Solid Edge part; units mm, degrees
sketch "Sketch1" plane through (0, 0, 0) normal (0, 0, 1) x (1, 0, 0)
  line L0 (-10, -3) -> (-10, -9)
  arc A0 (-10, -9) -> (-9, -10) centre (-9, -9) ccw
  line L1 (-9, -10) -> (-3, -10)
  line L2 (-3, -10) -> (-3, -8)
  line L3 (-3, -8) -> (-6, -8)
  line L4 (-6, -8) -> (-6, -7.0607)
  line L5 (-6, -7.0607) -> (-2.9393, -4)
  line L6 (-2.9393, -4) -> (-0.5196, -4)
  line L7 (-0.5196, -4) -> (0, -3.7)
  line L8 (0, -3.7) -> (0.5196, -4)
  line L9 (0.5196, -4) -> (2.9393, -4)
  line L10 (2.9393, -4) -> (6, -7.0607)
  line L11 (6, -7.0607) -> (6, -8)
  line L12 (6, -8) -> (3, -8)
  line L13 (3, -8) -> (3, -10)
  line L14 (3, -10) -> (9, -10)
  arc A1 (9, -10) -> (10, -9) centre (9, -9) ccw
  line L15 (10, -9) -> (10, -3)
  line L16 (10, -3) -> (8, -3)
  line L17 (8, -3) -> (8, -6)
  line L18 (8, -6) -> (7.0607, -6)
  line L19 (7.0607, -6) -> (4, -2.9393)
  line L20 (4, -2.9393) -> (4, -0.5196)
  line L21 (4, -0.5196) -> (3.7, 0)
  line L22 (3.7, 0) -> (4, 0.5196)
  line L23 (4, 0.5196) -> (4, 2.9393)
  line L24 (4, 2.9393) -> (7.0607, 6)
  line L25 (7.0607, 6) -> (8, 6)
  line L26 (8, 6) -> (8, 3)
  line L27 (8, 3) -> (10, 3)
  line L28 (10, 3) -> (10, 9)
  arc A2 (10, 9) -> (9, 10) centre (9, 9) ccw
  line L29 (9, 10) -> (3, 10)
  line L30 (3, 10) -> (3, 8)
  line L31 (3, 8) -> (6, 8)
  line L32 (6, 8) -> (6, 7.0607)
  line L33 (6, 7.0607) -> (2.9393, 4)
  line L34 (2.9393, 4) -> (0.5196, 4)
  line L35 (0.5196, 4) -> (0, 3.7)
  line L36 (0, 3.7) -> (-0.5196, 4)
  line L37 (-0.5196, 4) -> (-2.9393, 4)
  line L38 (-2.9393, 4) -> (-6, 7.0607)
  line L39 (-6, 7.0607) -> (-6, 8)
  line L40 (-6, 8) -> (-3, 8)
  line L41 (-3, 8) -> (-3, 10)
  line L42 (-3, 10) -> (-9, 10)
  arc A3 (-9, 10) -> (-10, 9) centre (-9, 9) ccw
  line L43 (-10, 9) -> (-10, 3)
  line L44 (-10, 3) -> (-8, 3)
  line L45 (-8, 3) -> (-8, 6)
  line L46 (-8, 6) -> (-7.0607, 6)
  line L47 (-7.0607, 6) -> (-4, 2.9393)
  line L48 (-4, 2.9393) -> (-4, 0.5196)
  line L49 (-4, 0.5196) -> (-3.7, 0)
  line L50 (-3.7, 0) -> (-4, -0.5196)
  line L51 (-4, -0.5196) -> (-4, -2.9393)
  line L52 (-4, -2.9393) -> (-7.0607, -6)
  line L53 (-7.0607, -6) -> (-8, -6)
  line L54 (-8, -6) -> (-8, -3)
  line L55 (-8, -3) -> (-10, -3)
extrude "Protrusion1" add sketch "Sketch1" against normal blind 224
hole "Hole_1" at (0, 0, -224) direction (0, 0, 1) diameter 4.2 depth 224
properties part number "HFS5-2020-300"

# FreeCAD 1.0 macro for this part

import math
import FreeCAD as App
import Part
import Sketcher
from FreeCAD import Vector
Q = App.Units.Quantity

doc = App.newDocument("Part")
body = doc.addObject("PartDesign::Body", "Body")

sketch1 = body.newObject("Sketcher::SketchObject", "Sketch")
sketch1.AttachmentSupport = (doc.getObject("XY_Plane"), [""])
sketch1.MapMode = "FlatFace"
sketch1.addGeometry([
    Part.LineSegment(Vector(-8, -3, 0), Vector(-10, -3, 0)),
    Part.LineSegment(Vector(-10, -3, 0), Vector(-10, -9, 0)),
    Part.ArcOfCircle(Part.Circle(Vector(-9, -9, 0), Vector(0, 0, 1), 1), math.radians(180), math.radians(270)),
    Part.LineSegment(Vector(-9, -10, 0), Vector(-3, -10, 0)),
    Part.LineSegment(Vector(-3, -10, 0), Vector(-3, -8, 0)),
    Part.LineSegment(Vector(-3, -8, 0), Vector(-6, -8, 0)),
    Part.LineSegment(Vector(-6, -8, 0), Vector(-6, -7.1, 0)),
    Part.LineSegment(Vector(-6, -7.1, 0), Vector(-2.9, -4, 0)),
    Part.LineSegment(Vector(-2.9, -4, 0), Vector(-0.5, -4, 0)),
    Part.LineSegment(Vector(-0.5, -4, 0), Vector(0, -3.7, 0)),
    Part.LineSegment(Vector(0, -3.7, 0), Vector(0.5, -4, 0)),
    Part.LineSegment(Vector(0.5, -4, 0), Vector(2.9, -4, 0)),
    Part.LineSegment(Vector(2.9, -4, 0), Vector(6, -7.1, 0)),
    Part.LineSegment(Vector(6, -7.1, 0), Vector(6, -8, 0)),
    Part.LineSegment(Vector(6, -8, 0), Vector(3, -8, 0)),
    Part.LineSegment(Vector(3, -8, 0), Vector(3, -10, 0)),
    Part.LineSegment(Vector(3, -10, 0), Vector(9, -10, 0)),
    Part.ArcOfCircle(Part.Circle(Vector(9, -9, 0), Vector(0, 0, 1), 1), math.radians(-90), math.radians(0)),
    Part.LineSegment(Vector(10, -9, 0), Vector(10, -3, 0)),
    Part.LineSegment(Vector(10, -3, 0), Vector(8, -3, 0)),
    Part.LineSegment(Vector(8, -3, 0), Vector(8, -6, 0)),
    Part.LineSegment(Vector(8, -6, 0), Vector(7.1, -6, 0)),
    Part.LineSegment(Vector(7.1, -6, 0), Vector(4, -2.9, 0)),
    Part.LineSegment(Vector(4, -2.9, 0), Vector(4, -0.5, 0)),
    Part.LineSegment(Vector(4, -0.5, 0), Vector(3.7, 0, 0)),
    Part.LineSegment(Vector(3.7, 0, 0), Vector(4, 0.5, 0)),
    Part.LineSegment(Vector(4, 0.5, 0), Vector(4, 2.9, 0)),
    Part.LineSegment(Vector(4, 2.9, 0), Vector(7.1, 6, 0)),
    Part.LineSegment(Vector(7.1, 6, 0), Vector(8, 6, 0)),
    Part.LineSegment(Vector(8, 6, 0), Vector(8, 3, 0)),
    Part.LineSegment(Vector(8, 3, 0), Vector(10, 3, 0)),
    Part.LineSegment(Vector(10, 3, 0), Vector(10, 9, 0)),
    Part.ArcOfCircle(Part.Circle(Vector(9, 9, 0), Vector(0, 0, 1), 1), math.radians(0), math.radians(90)),
    Part.LineSegment(Vector(9, 10, 0), Vector(3, 10, 0)),
    Part.LineSegment(Vector(3, 10, 0), Vector(3, 8, 0)),
    Part.LineSegment(Vector(3, 8, 0), Vector(6, 8, 0)),
    Part.LineSegment(Vector(6, 8, 0), Vector(6, 7.1, 0)),
    Part.LineSegment(Vector(6, 7.1, 0), Vector(2.9, 4, 0)),
    Part.LineSegment(Vector(2.9, 4, 0), Vector(0.5, 4, 0)),
    Part.LineSegment(Vector(0.5, 4, 0), Vector(0, 3.7, 0)),
    Part.LineSegment(Vector(0, 3.7, 0), Vector(-0.5, 4, 0)),
    Part.LineSegment(Vector(-0.5, 4, 0), Vector(-2.9, 4, 0)),
    Part.LineSegment(Vector(-2.9, 4, 0), Vector(-6, 7.1, 0)),
    Part.LineSegment(Vector(-6, 7.1, 0), Vector(-6, 8, 0)),
    Part.LineSegment(Vector(-6, 8, 0), Vector(-3, 8, 0)),
    Part.LineSegment(Vector(-3, 8, 0), Vector(-3, 10, 0)),
    Part.LineSegment(Vector(-3, 10, 0), Vector(-9, 10, 0)),
    Part.ArcOfCircle(Part.Circle(Vector(-9, 9, 0), Vector(0, 0, 1), 1), math.radians(90), math.radians(180)),
    Part.LineSegment(Vector(-10, 9, 0), Vector(-10, 3, 0)),
    Part.LineSegment(Vector(-10, 3, 0), Vector(-8, 3, 0)),
    Part.LineSegment(Vector(-8, 3, 0), Vector(-8, 6, 0)),
    Part.LineSegment(Vector(-8, 6, 0), Vector(-7.1, 6, 0)),
    Part.LineSegment(Vector(-7.1, 6, 0), Vector(-4, 2.9, 0)),
    Part.LineSegment(Vector(-4, 2.9, 0), Vector(-4, 0.5, 0)),
    Part.LineSegment(Vector(-4, 0.5, 0), Vector(-3.7, 0, 0)),
    Part.LineSegment(Vector(-3.7, 0, 0), Vector(-4, -0.5, 0)),
    Part.LineSegment(Vector(-4, -0.5, 0), Vector(-4, -2.9, 0)),
    Part.LineSegment(Vector(-4, -2.9, 0), Vector(-7.1, -6, 0)),
    Part.LineSegment(Vector(-7.1, -6, 0), Vector(-8, -6, 0)),
    Part.LineSegment(Vector(-8, -6, 0), Vector(-8, -3, 0)),
], False)
sketch1.addConstraint([
    Sketcher.Constraint("Coincident", 0, 2, 1, 1),
    Sketcher.Constraint("Tangent", 1, 2, 2, 1),
    Sketcher.Constraint("Tangent", 2, 2, 3, 1),
    Sketcher.Constraint("Coincident", 3, 2, 4, 1),
    Sketcher.Constraint("Coincident", 4, 2, 5, 1),
    Sketcher.Constraint("Coincident", 5, 2, 6, 1),
    Sketcher.Constraint("Coincident", 6, 2, 7, 1),
    Sketcher.Constraint("Coincident", 7, 2, 8, 1),
    Sketcher.Constraint("Coincident", 8, 2, 9, 1),
    Sketcher.Constraint("Coincident", 9, 2, 10, 1),
    Sketcher.Constraint("Coincident", 10, 2, 11, 1),
    Sketcher.Constraint("Coincident", 11, 2, 12, 1),
    Sketcher.Constraint("Coincident", 12, 2, 13, 1),
    Sketcher.Constraint("Coincident", 13, 2, 14, 1),
    Sketcher.Constraint("Coincident", 14, 2, 15, 1),
    Sketcher.Constraint("Coincident", 15, 2, 16, 1),
    Sketcher.Constraint("Tangent", 16, 2, 17, 1),
    Sketcher.Constraint("Tangent", 17, 2, 18, 1),
    Sketcher.Constraint("Coincident", 18, 2, 19, 1),
    Sketcher.Constraint("Coincident", 19, 2, 20, 1),
    Sketcher.Constraint("Coincident", 20, 2, 21, 1),
    Sketcher.Constraint("Coincident", 21, 2, 22, 1),
    Sketcher.Constraint("Coincident", 22, 2, 23, 1),
    Sketcher.Constraint("Coincident", 23, 2, 24, 1),
    Sketcher.Constraint("Coincident", 24, 2, 25, 1),
    Sketcher.Constraint("Coincident", 25, 2, 26, 1),
    Sketcher.Constraint("Coincident", 26, 2, 27, 1),
    Sketcher.Constraint("Coincident", 27, 2, 28, 1),
    Sketcher.Constraint("Coincident", 28, 2, 29, 1),
    Sketcher.Constraint("Coincident", 29, 2, 30, 1),
    Sketcher.Constraint("Coincident", 30, 2, 31, 1),
    Sketcher.Constraint("Tangent", 31, 2, 32, 1),
    Sketcher.Constraint("Tangent", 32, 2, 33, 1),
    Sketcher.Constraint("Coincident", 33, 2, 34, 1),
    Sketcher.Constraint("Coincident", 34, 2, 35, 1),
    Sketcher.Constraint("Coincident", 35, 2, 36, 1),
    Sketcher.Constraint("Coincident", 36, 2, 37, 1),
    Sketcher.Constraint("Coincident", 37, 2, 38, 1),
    Sketcher.Constraint("Coincident", 38, 2, 39, 1),
    Sketcher.Constraint("Coincident", 39, 2, 40, 1),
    Sketcher.Constraint("Coincident", 40, 2, 41, 1),
    Sketcher.Constraint("Coincident", 41, 2, 42, 1),
    Sketcher.Constraint("Coincident", 42, 2, 43, 1),
    Sketcher.Constraint("Coincident", 43, 2, 44, 1),
    Sketcher.Constraint("Coincident", 44, 2, 45, 1),
    Sketcher.Constraint("Coincident", 45, 2, 46, 1),
    Sketcher.Constraint("Tangent", 46, 2, 47, 1),
    Sketcher.Constraint("Tangent", 47, 2, 48, 1),
    Sketcher.Constraint("Coincident", 48, 2, 49, 1),
    Sketcher.Constraint("Coincident", 49, 2, 50, 1),
    Sketcher.Constraint("Coincident", 50, 2, 51, 1),
    Sketcher.Constraint("Coincident", 51, 2, 52, 1),
    Sketcher.Constraint("Coincident", 52, 2, 53, 1),
    Sketcher.Constraint("Coincident", 53, 2, 54, 1),
    Sketcher.Constraint("Coincident", 54, 2, 55, 1),
    Sketcher.Constraint("Coincident", 55, 2, 56, 1),
    Sketcher.Constraint("Coincident", 56, 2, 57, 1),
    Sketcher.Constraint("Coincident", 57, 2, 58, 1),
    Sketcher.Constraint("Coincident", 58, 2, 59, 1),
    Sketcher.Constraint("Coincident", 59, 2, 0, 1),
    Sketcher.Constraint("Horizontal", 0),
    Sketcher.Constraint("Vertical", 1),
    Sketcher.Constraint("Horizontal", 3),
    Sketcher.Constraint("Vertical", 4),
    Sketcher.Constraint("Horizontal", 5),
    Sketcher.Constraint("Vertical", 6),
    Sketcher.Constraint("Horizontal", 8),
    Sketcher.Constraint("Horizontal", 11),
    Sketcher.Constraint("Vertical", 13),
    Sketcher.Constraint("Horizontal", 14),
    Sketcher.Constraint("Vertical", 15),
    Sketcher.Constraint("Horizontal", 16),
    Sketcher.Constraint("Vertical", 18),
    Sketcher.Constraint("Horizontal", 19),
    Sketcher.Constraint("Vertical", 20),
    Sketcher.Constraint("Horizontal", 21),
    Sketcher.Constraint("Vertical", 23),
    Sketcher.Constraint("Vertical", 26),
    Sketcher.Constraint("Horizontal", 28),
    Sketcher.Constraint("Vertical", 29),
    Sketcher.Constraint("Horizontal", 30),
    Sketcher.Constraint("Vertical", 31),
    Sketcher.Constraint("Horizontal", 33),
    Sketcher.Constraint("Vertical", 34),
    Sketcher.Constraint("Horizontal", 35),
    Sketcher.Constraint("Vertical", 36),
    Sketcher.Constraint("Horizontal", 38),
    Sketcher.Constraint("Horizontal", 41),
    Sketcher.Constraint("Vertical", 43),
    Sketcher.Constraint("Horizontal", 44),
    Sketcher.Constraint("Vertical", 45),
    Sketcher.Constraint("Horizontal", 46),
    Sketcher.Constraint("Vertical", 48),
    Sketcher.Constraint("Horizontal", 49),
    Sketcher.Constraint("Vertical", 50),
    Sketcher.Constraint("Horizontal", 51),
    Sketcher.Constraint("Vertical", 53),
    Sketcher.Constraint("Vertical", 56),
    Sketcher.Constraint("Horizontal", 58),
    Sketcher.Constraint("Vertical", 59),
    Sketcher.Constraint("Equal", 2, 17),
    Sketcher.Constraint("Equal", 17, 32),
    Sketcher.Constraint("Equal", 32, 47),
    Sketcher.Constraint("Symmetric", 2, 3, 32, 3, -1, 1),
    Sketcher.Constraint("Symmetric", 17, 3, 47, 3, -1, 1),
    Sketcher.Constraint("Symmetric", 4, 2, 34, 2, -1, 1),
    Sketcher.Constraint("Symmetric", 6, 2, 36, 2, -1, 1),
    Sketcher.Constraint("Symmetric", 7, 2, 37, 2, -1, 1),
    Sketcher.Constraint("Symmetric", 9, 2, 39, 2, -1, 1),
    Sketcher.Constraint("Symmetric", 10, 2, 40, 2, -1, 1),
    Sketcher.Constraint("Symmetric", 12, 2, 42, 2, -1, 1),
    Sketcher.Constraint("Symmetric", 14, 2, 44, 2, -1, 1),
    Sketcher.Constraint("Symmetric", 19, 2, 49, 2, -1, 1),
    Sketcher.Constraint("Symmetric", 21, 2, 51, 2, -1, 1),
    Sketcher.Constraint("Symmetric", 22, 2, 52, 2, -1, 1),
    Sketcher.Constraint("Symmetric", 24, 2, 54, 2, -1, 1),
    Sketcher.Constraint("Symmetric", 25, 2, 55, 2, -1, 1),
    Sketcher.Constraint("Symmetric", 27, 2, 57, 2, -1, 1),
    Sketcher.Constraint("Symmetric", 29, 2, 59, 2, -1, 1),
    Sketcher.Constraint("Symmetric", 2, 3, 17, 3, -2),
    Sketcher.Constraint("Symmetric", 8, 2, 10, 2, -2),
    Sketcher.Constraint("Symmetric", 6, 2, 12, 2, -2),
    Sketcher.Constraint("Symmetric", 4, 2, 14, 2, -2),
    Sketcher.Constraint("Symmetric", 29, 2, 49, 2, -2),
    Sketcher.Constraint("Symmetric", 27, 2, 51, 2, -2),
    Sketcher.Constraint("Symmetric", 26, 2, 52, 2, -2),
    Sketcher.Constraint("PointOnObject", 9, 2, -2),
    Sketcher.Constraint("PointOnObject", 24, 2, -1),
    Sketcher.Constraint("Perpendicular", 7, 12),
    Sketcher.Constraint("Parallel", 12, 22),
    Sketcher.Constraint("Perpendicular", 9, 24),
    Sketcher.Constraint("Perpendicular", 10, 25),
    Sketcher.Constraint("Perpendicular", 22, 27),
    Sketcher.Constraint("Perpendicular", 24, 39),
    Sketcher.Constraint("Perpendicular", 37, 42),
    Sketcher.Constraint("Perpendicular", 39, 54),
    Sketcher.Constraint("Perpendicular", 52, 57),
    Sketcher.Constraint("Equal", 46, 1),
    Sketcher.Constraint("Equal", 49, 4),
    Sketcher.Constraint("Equal", 58, 6),
    Sketcher.Constraint("Equal", 44, 20),
    Sketcher.Constraint("Equal", 41, 23),
    Sketcher.Constraint("Equal", 12, 22),
    Sketcher.Constraint("Equal", 10, 24),
    Sketcher.Constraint("Radius", 2, Q("1 mm")),
    Sketcher.Constraint("DistanceX", 0, 2, 0, 1, Q("2 mm")),
    Sketcher.Constraint("DistanceX", 3, 1, 3, 2, Q("6 mm")),
    Sketcher.Constraint("DistanceX", 5, 2, 5, 1, Q("3 mm")),
    Sketcher.Constraint("Angle", 9, Q("30.0007 deg")),
    Sketcher.Constraint("DistanceX", 2, 3, -1, 1, Q("9 mm")),
    Sketcher.Constraint("DistanceY", 7, 2, -1, 1, Q("4 mm")),
    Sketcher.Constraint("Distance", 9, Q("0.6 mm")),
    Sketcher.Constraint("DistanceX", 8, 1, 8, 2, Q("2.4197 mm")),
])
pad1 = body.newObject("PartDesign::Pad", "Pad")
pad1.Profile = sketch1
pad1.Length = 224
pad1.Reversed = True

sketch2 = body.newObject("Sketcher::SketchObject", "Sketch001")
sketch2.AttachmentSupport = (doc.getObject("XY_Plane"), [""])
sketch2.MapMode = "FlatFace"
sketch2.AttachmentOffset = App.Placement(Vector(0, 0, -224), App.Rotation())
sketch2.addGeometry(Part.Circle(Vector(0, 0, 0), Vector(0, 0, 1), 2.1), False)
sketch2.addConstraint([
    Sketcher.Constraint("Coincident", 0, 3, -1, 1),
    Sketcher.Constraint("Diameter", 0, Q("4.2 mm")),
])
doc.recompute()
hole = body.newObject("PartDesign::Hole", "Hole")
hole.Profile = sketch2
hole.ThreadType = "None"
hole.Diameter = 4.2
hole.DepthType = "Dimension"
hole.Depth = 224
hole.DrillPoint = "Flat"
hole.Reversed = True

doc.recompute()
